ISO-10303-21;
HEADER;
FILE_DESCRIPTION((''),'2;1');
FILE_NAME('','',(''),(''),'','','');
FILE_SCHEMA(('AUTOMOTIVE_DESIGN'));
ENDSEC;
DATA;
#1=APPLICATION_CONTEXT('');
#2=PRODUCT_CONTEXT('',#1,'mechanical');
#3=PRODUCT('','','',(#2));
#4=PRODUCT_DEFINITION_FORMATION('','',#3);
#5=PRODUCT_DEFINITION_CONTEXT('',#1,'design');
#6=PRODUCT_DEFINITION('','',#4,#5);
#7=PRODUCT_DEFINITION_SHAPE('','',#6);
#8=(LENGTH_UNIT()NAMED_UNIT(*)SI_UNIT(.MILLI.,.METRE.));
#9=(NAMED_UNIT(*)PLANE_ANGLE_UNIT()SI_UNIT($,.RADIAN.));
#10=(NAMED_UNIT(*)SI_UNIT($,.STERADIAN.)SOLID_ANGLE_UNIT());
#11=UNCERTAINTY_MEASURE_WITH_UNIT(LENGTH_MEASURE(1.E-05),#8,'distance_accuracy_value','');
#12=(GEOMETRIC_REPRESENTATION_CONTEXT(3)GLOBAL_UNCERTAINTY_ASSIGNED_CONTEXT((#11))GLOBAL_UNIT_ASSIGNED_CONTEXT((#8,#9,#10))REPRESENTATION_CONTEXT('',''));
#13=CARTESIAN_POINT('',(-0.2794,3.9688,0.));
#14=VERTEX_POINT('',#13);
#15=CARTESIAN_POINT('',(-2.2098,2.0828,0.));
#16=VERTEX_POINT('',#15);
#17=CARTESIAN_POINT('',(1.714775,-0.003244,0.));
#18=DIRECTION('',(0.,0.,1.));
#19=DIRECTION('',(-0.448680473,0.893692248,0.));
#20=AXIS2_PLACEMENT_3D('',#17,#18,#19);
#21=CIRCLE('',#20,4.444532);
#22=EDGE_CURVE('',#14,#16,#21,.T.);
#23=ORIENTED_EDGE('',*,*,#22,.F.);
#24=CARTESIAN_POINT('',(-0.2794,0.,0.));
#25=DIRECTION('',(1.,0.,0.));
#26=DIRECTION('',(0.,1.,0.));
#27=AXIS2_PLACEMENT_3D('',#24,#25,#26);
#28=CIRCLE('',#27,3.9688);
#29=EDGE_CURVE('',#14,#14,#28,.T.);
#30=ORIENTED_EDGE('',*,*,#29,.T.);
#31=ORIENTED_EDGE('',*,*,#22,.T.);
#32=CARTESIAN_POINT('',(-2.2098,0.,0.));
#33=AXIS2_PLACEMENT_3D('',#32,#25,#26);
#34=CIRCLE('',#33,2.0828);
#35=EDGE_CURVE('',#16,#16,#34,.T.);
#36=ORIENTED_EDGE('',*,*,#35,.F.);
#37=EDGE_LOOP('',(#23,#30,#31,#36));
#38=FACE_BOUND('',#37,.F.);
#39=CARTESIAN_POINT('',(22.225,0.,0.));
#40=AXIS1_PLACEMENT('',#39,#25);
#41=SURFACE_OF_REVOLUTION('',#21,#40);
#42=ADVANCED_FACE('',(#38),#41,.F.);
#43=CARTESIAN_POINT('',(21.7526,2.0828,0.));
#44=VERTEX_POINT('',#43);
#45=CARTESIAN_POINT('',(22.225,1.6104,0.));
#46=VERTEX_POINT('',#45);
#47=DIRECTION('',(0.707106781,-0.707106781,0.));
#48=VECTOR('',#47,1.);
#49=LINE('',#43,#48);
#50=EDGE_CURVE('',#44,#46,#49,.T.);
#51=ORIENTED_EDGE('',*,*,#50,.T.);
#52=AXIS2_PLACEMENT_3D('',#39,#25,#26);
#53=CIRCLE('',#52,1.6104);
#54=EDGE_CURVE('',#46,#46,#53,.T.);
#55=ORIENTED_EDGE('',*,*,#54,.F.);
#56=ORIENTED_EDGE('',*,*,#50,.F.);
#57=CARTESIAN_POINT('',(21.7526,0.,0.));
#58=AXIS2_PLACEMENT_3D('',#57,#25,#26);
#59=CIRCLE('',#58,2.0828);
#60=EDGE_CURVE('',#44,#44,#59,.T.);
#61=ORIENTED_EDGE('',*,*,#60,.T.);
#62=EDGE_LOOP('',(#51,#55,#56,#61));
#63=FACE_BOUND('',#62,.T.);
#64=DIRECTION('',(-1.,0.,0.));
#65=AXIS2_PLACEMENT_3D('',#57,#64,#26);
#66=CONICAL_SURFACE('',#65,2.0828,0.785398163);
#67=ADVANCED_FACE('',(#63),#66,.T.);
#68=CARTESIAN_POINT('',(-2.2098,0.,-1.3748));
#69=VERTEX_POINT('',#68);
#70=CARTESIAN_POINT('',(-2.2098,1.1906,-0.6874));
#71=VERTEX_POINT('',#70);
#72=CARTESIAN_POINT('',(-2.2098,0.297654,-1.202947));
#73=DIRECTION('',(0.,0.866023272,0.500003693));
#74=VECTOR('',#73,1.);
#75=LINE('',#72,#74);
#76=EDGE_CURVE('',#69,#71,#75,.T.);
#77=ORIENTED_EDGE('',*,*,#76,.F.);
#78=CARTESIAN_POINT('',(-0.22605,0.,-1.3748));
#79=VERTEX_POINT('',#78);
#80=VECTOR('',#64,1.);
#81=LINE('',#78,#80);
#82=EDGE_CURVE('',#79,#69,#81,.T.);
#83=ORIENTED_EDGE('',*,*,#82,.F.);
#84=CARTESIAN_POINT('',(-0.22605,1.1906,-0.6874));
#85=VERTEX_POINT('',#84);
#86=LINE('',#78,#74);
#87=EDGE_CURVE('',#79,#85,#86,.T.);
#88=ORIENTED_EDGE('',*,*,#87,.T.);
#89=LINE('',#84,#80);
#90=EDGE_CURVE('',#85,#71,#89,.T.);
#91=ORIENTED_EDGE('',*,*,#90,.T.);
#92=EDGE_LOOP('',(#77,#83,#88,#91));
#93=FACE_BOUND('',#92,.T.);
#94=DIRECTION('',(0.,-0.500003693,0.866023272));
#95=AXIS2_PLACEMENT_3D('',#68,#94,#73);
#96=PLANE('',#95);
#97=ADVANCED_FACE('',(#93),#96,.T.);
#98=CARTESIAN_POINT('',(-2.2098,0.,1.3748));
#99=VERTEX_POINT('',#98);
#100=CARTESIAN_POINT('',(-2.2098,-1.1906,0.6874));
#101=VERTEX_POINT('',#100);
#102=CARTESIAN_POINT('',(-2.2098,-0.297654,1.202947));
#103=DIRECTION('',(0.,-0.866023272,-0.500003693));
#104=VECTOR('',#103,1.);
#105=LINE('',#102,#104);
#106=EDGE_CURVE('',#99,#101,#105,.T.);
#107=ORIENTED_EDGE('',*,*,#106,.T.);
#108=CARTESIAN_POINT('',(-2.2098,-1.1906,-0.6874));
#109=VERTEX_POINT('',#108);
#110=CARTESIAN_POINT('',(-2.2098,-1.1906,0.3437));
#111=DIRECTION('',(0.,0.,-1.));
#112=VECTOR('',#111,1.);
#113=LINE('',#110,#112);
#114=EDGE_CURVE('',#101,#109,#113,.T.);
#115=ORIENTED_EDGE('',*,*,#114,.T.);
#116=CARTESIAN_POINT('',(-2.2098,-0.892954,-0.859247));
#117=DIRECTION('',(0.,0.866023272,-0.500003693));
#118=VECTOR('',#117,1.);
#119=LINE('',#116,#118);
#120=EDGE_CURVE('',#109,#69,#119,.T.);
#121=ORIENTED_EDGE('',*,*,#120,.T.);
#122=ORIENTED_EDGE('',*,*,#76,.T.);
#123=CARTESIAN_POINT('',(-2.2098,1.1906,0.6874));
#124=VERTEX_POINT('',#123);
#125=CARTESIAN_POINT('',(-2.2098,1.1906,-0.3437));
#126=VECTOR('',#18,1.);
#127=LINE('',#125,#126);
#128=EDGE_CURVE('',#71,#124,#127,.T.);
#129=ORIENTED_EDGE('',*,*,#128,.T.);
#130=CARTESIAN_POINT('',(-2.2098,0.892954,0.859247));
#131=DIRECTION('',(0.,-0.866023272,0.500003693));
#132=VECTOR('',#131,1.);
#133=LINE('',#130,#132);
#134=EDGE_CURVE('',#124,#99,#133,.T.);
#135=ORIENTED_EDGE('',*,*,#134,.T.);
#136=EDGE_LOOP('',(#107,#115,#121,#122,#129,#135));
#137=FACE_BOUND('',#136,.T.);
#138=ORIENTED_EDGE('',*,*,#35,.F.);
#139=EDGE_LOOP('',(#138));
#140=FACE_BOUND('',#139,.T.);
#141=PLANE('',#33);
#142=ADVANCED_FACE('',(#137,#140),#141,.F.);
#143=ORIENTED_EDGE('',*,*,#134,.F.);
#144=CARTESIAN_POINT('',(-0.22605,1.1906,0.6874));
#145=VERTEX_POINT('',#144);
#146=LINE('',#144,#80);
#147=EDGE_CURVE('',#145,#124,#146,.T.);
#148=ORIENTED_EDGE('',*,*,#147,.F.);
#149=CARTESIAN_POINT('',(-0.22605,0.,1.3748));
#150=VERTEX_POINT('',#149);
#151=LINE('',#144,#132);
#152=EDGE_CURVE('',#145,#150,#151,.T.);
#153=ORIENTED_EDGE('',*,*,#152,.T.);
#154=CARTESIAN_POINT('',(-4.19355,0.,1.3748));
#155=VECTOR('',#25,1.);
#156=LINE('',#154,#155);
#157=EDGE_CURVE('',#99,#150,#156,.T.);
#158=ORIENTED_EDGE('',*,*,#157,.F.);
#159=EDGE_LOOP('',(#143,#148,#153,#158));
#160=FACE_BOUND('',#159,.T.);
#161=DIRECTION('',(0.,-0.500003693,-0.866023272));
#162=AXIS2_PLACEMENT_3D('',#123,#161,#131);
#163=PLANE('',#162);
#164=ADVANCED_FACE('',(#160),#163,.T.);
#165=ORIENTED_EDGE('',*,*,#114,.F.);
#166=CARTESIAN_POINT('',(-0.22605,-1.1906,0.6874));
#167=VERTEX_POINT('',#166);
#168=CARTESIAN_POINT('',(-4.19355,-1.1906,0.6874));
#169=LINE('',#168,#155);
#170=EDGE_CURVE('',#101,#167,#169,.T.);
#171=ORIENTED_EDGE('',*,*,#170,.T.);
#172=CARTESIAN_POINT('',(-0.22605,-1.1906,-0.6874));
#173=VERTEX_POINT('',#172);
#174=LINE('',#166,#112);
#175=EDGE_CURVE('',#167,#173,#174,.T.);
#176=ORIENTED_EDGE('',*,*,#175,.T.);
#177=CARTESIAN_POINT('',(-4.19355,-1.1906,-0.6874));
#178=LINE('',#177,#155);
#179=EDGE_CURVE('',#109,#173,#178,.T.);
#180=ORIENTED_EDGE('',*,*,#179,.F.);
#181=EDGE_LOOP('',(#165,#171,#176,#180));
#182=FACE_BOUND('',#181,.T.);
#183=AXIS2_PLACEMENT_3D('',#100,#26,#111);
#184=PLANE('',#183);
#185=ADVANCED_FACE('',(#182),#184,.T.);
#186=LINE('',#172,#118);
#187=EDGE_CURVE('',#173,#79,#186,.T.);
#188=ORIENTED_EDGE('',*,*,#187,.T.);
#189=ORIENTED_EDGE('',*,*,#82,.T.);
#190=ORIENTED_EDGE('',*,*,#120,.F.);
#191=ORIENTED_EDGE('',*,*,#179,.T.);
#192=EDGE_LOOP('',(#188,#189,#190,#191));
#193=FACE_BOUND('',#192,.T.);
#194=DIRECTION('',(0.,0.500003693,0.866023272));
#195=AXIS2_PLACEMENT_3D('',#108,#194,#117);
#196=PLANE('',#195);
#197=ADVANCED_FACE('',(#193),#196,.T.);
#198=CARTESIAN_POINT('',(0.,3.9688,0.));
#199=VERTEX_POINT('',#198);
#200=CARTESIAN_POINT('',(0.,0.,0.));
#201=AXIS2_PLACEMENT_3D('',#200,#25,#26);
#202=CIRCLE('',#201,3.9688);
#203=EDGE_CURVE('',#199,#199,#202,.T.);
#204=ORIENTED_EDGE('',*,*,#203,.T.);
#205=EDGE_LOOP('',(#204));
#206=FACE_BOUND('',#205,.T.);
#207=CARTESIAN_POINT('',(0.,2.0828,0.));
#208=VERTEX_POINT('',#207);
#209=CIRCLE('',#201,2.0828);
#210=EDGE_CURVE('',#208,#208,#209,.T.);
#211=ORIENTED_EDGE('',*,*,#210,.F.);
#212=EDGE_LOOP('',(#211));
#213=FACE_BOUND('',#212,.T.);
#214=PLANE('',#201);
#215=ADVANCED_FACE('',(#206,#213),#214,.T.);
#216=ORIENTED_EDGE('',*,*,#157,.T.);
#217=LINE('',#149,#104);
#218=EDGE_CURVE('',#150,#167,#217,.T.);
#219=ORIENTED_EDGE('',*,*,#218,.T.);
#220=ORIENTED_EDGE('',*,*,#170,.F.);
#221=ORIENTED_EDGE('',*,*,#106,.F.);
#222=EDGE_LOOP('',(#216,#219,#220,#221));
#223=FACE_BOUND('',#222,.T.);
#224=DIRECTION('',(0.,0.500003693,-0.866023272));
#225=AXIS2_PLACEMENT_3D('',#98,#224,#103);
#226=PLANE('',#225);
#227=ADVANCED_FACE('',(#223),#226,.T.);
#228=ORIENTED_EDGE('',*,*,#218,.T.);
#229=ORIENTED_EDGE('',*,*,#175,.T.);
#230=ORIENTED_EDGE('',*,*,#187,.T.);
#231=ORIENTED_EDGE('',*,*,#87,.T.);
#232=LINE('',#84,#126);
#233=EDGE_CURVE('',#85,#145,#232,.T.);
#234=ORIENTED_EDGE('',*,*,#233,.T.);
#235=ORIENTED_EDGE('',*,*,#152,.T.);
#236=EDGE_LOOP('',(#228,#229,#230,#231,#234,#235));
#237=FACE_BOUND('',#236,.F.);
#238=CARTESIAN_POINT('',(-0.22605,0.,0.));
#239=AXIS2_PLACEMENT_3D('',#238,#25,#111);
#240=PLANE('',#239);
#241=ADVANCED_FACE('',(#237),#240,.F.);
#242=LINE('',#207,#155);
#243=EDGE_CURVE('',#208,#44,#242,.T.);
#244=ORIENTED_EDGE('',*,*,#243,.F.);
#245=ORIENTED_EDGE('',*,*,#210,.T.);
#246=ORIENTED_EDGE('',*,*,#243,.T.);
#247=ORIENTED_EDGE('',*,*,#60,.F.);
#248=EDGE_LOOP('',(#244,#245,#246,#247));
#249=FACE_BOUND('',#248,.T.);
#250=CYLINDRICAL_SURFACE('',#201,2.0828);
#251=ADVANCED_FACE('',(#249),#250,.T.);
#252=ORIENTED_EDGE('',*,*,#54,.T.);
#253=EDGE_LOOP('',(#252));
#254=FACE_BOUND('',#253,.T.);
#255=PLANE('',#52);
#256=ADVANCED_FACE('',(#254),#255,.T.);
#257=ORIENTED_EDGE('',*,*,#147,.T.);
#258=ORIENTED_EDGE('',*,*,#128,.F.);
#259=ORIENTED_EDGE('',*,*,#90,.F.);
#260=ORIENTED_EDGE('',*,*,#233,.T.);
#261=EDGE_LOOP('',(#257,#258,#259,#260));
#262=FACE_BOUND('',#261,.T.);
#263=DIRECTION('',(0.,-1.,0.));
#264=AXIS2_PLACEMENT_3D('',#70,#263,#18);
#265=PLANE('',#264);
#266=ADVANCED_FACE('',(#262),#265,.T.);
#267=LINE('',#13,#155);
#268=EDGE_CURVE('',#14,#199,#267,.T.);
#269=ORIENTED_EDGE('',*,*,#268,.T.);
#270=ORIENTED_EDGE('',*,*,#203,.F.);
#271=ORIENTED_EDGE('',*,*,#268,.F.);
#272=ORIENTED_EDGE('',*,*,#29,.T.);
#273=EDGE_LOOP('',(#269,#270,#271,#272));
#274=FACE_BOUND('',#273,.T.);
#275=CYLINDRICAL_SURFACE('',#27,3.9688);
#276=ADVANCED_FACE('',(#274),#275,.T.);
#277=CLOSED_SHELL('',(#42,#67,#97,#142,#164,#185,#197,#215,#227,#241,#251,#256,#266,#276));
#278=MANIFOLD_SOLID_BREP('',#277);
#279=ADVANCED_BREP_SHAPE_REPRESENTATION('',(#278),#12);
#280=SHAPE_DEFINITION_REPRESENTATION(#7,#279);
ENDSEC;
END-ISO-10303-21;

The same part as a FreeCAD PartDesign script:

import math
import FreeCAD as App
import Part
import Sketcher
from FreeCAD import Vector
Q = App.Units.Quantity


def add_polygon(sketch, points):
    """Adds a closed chain of lines whose ends are joined by coincident constraints."""
    first, n = sketch.GeometryCount, len(points)
    for a, b in zip(points, points[1:] + points[:1]):
        sketch.addGeometry(Part.LineSegment(App.Vector(*a, 0), App.Vector(*b, 0)), False)
    for i in range(n):
        sketch.addConstraint(Sketcher.Constraint("Coincident", first + i, 2, first + (i + 1) % n, 1))

doc = App.newDocument("Part")
body = doc.addObject("PartDesign::Body", "Body")

# Sketch on XY plane
sketch1 = body.newObject("Sketcher::SketchObject", "Sketch")
sketch1.AttachmentSupport = (doc.getObject("XY_Plane"), [""])
sketch1.MapMode = "FlatFace"
sketch1.addGeometry([
    Part.LineSegment(Vector(-2.21, 0, 0), Vector(22.23, 0, 0)),  # 0
    Part.LineSegment(Vector(22.23, 0, 0), Vector(22.23, 1.61, 0)),  # 1
    Part.LineSegment(Vector(22.23, 1.61, 0), Vector(21.75, 2.08, 0)),  # 2
    Part.LineSegment(Vector(21.75, 2.08, 0), Vector(0, 2.08, 0)),  # 3
    Part.LineSegment(Vector(0, 2.08, 0), Vector(0, 3.97, 0)),  # 4
    Part.LineSegment(Vector(0, 3.97, 0), Vector(-0.28, 3.97, 0)),  # 5
    Part.ArcOfCircle(Part.Circle(Vector(1.72, 0, 0), Vector(0, 0, 1), 4.45), math.radians(117), math.radians(152)),  # 6
    Part.LineSegment(Vector(-2.21, 2.08, 0), Vector(-2.21, 0, 0)),  # 7
], False)
sketch1.addConstraint([
    Sketcher.Constraint("Coincident", 0, 2, 1, 1),
    Sketcher.Constraint("Coincident", 1, 2, 2, 1),
    Sketcher.Constraint("Coincident", 2, 2, 3, 1),
    Sketcher.Constraint("Coincident", 3, 2, 4, 1),
    Sketcher.Constraint("Coincident", 4, 2, 5, 1),
    Sketcher.Constraint("Coincident", 5, 2, 6, 1),
    Sketcher.Constraint("Coincident", 6, 2, 7, 1),
    Sketcher.Constraint("Coincident", 7, 2, 0, 1),
    Sketcher.Constraint("Horizontal", 0),
    Sketcher.Constraint("Vertical", 1),
    Sketcher.Constraint("Horizontal", 3),
    Sketcher.Constraint("Vertical", 4),
    Sketcher.Constraint("Horizontal", 5),
    Sketcher.Constraint("Vertical", 7),
    Sketcher.Constraint("PointOnObject", 0, 2, -1),
    Sketcher.Constraint("PointOnObject", 3, 2, -2),
    Sketcher.Constraint("Horizontal", 3, 2, 6, 2),
    Sketcher.Constraint("Angle", 2, Q("135 deg")),
    Sketcher.Constraint("Radius", 6, Q("0.175 in")),
    Sketcher.Constraint("DistanceX", 0, 1, 0, 2, Q("0.962 in")),
    Sketcher.Constraint("DistanceX", 5, 2, 5, 1, Q("0.011 in")),
    Sketcher.Constraint("DistanceY", 7, 2, 7, 1, Q("0.082 in")),
    Sketcher.Constraint("DistanceX", 3, 2, 3, 1, Q("0.8564 in")),
    Sketcher.Constraint("DistanceY", 1, 1, 1, 2, Q("0.0634 in")),
    Sketcher.Constraint("DistanceY", -1, 1, 4, 2, Q("0.156252 in")),
])
revolution = body.newObject("PartDesign::Revolution", "Revolution")
revolution.Profile = sketch1
revolution.ReferenceAxis = (sketch1, ["H_Axis"])
revolution.Angle = 360

# Sketch on YZ plane
sketch2 = body.newObject("Sketcher::SketchObject", "Sketch001")
sketch2.AttachmentSupport = (doc.getObject("YZ_Plane"), [""])
sketch2.MapMode = "FlatFace"
sketch2.AttachmentOffset = App.Placement(Vector(0, 0, -0.087 * 25.4), App.Rotation())
add_polygon(sketch2, [(1.2, 0.7), (0, 1.4), (-1.2, 0.7), (-1.2, -0.7), (0, -1.4), (1.2, -0.7)])  # lines 0-5
sketch2.addConstraint([
    Sketcher.Constraint("Vertical", 2),
    Sketcher.Constraint("Vertical", 5),
    Sketcher.Constraint("Symmetric", 0, 2, 3, 2, -1, 1),
    Sketcher.Constraint("Symmetric", 1, 2, 4, 2, -1, 1),
    Sketcher.Constraint("PointOnObject", 0, 2, -2),
    Sketcher.Constraint("Parallel", 0, 3),
    Sketcher.Constraint("Horizontal", 2, 2, 4, 2),
    Sketcher.Constraint("Angle", 0, Q("149.9998 deg")),
    Sketcher.Constraint("DistanceX", 1, 2, -1, 1, Q("0.046874 in")),
    Sketcher.Constraint("DistanceY", 2, 2, 2, 1, 1.3748),
])
pocket1 = body.newObject("PartDesign::Pocket", "Pocket")
pocket1.Profile = sketch2
pocket1.Length = Q("0.1562008 in")
pocket1.Midplane = True

doc.recompute()
